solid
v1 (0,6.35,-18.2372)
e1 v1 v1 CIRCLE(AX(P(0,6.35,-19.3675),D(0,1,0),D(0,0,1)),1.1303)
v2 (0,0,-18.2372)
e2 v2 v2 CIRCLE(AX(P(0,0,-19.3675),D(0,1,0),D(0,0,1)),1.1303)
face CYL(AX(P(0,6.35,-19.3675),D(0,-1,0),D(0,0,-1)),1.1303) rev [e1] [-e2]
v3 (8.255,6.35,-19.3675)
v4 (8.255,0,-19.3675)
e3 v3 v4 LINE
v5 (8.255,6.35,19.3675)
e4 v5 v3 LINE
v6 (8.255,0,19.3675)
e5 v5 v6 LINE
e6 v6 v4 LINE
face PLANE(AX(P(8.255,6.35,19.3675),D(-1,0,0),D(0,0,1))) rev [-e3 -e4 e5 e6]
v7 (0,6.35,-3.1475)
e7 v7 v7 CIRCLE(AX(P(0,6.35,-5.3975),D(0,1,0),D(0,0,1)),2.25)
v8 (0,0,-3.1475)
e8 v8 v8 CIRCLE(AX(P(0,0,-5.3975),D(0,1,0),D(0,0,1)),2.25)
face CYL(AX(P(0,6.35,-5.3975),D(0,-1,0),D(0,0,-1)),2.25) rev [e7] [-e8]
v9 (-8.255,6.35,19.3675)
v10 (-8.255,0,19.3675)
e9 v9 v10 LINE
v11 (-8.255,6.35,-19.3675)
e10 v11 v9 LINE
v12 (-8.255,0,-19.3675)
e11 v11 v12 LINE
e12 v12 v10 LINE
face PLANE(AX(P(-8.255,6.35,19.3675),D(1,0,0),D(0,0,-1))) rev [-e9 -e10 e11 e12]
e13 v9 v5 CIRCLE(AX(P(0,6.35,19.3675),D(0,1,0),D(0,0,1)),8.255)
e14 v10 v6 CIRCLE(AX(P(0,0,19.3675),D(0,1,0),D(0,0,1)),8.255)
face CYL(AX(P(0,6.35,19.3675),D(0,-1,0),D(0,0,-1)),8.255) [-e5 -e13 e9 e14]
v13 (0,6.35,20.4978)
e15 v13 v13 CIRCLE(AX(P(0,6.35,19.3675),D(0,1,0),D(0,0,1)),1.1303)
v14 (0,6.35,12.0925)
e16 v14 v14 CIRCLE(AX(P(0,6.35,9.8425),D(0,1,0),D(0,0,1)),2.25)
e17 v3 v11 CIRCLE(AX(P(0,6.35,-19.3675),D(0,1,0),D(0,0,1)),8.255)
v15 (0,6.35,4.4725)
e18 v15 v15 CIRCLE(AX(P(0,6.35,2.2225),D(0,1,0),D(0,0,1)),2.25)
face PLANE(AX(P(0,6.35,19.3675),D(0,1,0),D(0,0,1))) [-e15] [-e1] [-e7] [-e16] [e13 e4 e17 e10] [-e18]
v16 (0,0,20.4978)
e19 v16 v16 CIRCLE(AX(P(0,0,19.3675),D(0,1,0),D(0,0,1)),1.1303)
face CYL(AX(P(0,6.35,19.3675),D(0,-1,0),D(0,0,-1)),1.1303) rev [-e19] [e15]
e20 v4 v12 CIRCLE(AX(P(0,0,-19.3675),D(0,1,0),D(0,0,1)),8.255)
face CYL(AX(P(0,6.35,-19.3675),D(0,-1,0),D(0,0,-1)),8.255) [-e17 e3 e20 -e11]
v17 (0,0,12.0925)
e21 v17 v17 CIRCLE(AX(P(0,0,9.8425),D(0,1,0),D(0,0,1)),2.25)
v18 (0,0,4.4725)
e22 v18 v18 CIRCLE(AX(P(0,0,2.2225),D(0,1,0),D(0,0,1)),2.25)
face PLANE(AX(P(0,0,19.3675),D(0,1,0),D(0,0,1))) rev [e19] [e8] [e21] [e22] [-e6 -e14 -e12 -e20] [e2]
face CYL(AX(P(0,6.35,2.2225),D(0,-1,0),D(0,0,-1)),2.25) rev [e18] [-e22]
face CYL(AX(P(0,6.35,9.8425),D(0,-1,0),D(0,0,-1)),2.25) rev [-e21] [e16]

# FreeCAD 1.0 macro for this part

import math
import FreeCAD as App
import Part
import Sketcher
Q = App.Units.Quantity

doc = App.newDocument("Part")
params = doc.addObject("Spreadsheet::Sheet", "Params")
for row, (alias, value) in enumerate([
    ("sketch1_diameter", "0.089 in"),
    ("sketch1_radius", "0.325 in"),
    ("sketch1_height", "1.525 in"),
    ("pad1_length", "0.25 in"),
], start=1):
    params.set(f"A{row}", alias)
    params.set(f"B{row}", "=" + value)
    params.setAlias(f"B{row}", alias)

body = doc.addObject("PartDesign::Body", "Body")

sketch1 = body.newObject("Sketcher::SketchObject", "Sketch")
sketch1.AttachmentSupport = (doc.getObject("XZ_Plane"), [""])
sketch1.MapMode = "FlatFace"
sketch1.addGeometry(Part.LineSegment(App.Vector(-8.3, -19.4, 0), App.Vector(-8.3, 19.4, 0)), False)
sketch1.addGeometry(Part.ArcOfCircle(Part.Circle(App.Vector(0, 19.4, 0), App.Vector(0, 0, 1), 8.3), math.radians(0), math.radians(180)), False)
sketch1.addGeometry(Part.LineSegment(App.Vector(8.3, 19.4, 0), App.Vector(8.3, -19.4, 0)), False)
sketch1.addGeometry(Part.ArcOfCircle(Part.Circle(App.Vector(0, -19.4, 0), App.Vector(0, 0, 1), 8.3), math.radians(180), math.radians(360)), False)
sketch1.addGeometry(Part.Circle(App.Vector(0, 19.4, 0), App.Vector(0, 0, 1), 1.1), False)
sketch1.addGeometry(Part.Circle(App.Vector(0, 9.8, 0), App.Vector(0, 0, 1), 2.2), False)
sketch1.addGeometry(Part.Circle(App.Vector(0, 2.2, 0), App.Vector(0, 0, 1), 2.2), False)
sketch1.addGeometry(Part.Circle(App.Vector(0, -5.4, 0), App.Vector(0, 0, 1), 2.2), False)
sketch1.addGeometry(Part.Circle(App.Vector(0, -19.4, 0), App.Vector(0, 0, 1), 1.1), False)
sketch1.addConstraint(Sketcher.Constraint("Tangent", 0, 2, 1, 2))
sketch1.addConstraint(Sketcher.Constraint("Tangent", 1, 1, 2, 1))
sketch1.addConstraint(Sketcher.Constraint("Tangent", 2, 2, 3, 2))
sketch1.addConstraint(Sketcher.Constraint("Tangent", 3, 1, 0, 1))
sketch1.addConstraint(Sketcher.Constraint("Vertical", 0))
sketch1.addConstraint(Sketcher.Constraint("Vertical", 2))
sketch1.addConstraint(Sketcher.Constraint("Coincident", 4, 3, 1, 3))
sketch1.addConstraint(Sketcher.Constraint("Coincident", 8, 3, 3, 3))
sketch1.addConstraint(Sketcher.Constraint("Equal", 5, 6))
sketch1.addConstraint(Sketcher.Constraint("Equal", 6, 7))
sketch1.addConstraint(Sketcher.Constraint("Equal", 4, 8))
sketch1.addConstraint(Sketcher.Constraint("Symmetric", 1, 3, 3, 3, -1, 1))
sketch1.addConstraint(Sketcher.Constraint("PointOnObject", 5, 3, -2))
sketch1.addConstraint(Sketcher.Constraint("PointOnObject", 6, 3, -2))
sketch1.addConstraint(Sketcher.Constraint("PointOnObject", 7, 3, -2))
sketch1.addConstraint(Sketcher.Constraint("Diameter", 4, Q("0.089 in")))
sketch1.addConstraint(Sketcher.Constraint("Radius", 1, Q("0.325 in")))
sketch1.addConstraint(Sketcher.Constraint("DistanceY", 6, 3, 5, 3, Q("0.3 in")))
sketch1.addConstraint(Sketcher.Constraint("DistanceY", 7, 3, 6, 3, Q("0.3 in")))
sketch1.addConstraint(Sketcher.Constraint("Diameter", 5, 4.5))
sketch1.addConstraint(Sketcher.Constraint("DistanceY", 0, 1, 0, 2, Q("1.525 in")))
sketch1.addConstraint(Sketcher.Constraint("DistanceY", 3, 3, 5, 3, Q("1.15 in")))
sketch1.setExpression("Constraints[15]", "Params.sketch1_diameter")
sketch1.setExpression("Constraints[16]", "Params.sketch1_radius")
sketch1.setExpression("Constraints[20]", "Params.sketch1_height")
pad1 = body.newObject("PartDesign::Pad", "Pad")
pad1.Profile = sketch1
pad1.setExpression("Length", "Params.pad1_length")
pad1.Reversed = True

doc.recompute()
